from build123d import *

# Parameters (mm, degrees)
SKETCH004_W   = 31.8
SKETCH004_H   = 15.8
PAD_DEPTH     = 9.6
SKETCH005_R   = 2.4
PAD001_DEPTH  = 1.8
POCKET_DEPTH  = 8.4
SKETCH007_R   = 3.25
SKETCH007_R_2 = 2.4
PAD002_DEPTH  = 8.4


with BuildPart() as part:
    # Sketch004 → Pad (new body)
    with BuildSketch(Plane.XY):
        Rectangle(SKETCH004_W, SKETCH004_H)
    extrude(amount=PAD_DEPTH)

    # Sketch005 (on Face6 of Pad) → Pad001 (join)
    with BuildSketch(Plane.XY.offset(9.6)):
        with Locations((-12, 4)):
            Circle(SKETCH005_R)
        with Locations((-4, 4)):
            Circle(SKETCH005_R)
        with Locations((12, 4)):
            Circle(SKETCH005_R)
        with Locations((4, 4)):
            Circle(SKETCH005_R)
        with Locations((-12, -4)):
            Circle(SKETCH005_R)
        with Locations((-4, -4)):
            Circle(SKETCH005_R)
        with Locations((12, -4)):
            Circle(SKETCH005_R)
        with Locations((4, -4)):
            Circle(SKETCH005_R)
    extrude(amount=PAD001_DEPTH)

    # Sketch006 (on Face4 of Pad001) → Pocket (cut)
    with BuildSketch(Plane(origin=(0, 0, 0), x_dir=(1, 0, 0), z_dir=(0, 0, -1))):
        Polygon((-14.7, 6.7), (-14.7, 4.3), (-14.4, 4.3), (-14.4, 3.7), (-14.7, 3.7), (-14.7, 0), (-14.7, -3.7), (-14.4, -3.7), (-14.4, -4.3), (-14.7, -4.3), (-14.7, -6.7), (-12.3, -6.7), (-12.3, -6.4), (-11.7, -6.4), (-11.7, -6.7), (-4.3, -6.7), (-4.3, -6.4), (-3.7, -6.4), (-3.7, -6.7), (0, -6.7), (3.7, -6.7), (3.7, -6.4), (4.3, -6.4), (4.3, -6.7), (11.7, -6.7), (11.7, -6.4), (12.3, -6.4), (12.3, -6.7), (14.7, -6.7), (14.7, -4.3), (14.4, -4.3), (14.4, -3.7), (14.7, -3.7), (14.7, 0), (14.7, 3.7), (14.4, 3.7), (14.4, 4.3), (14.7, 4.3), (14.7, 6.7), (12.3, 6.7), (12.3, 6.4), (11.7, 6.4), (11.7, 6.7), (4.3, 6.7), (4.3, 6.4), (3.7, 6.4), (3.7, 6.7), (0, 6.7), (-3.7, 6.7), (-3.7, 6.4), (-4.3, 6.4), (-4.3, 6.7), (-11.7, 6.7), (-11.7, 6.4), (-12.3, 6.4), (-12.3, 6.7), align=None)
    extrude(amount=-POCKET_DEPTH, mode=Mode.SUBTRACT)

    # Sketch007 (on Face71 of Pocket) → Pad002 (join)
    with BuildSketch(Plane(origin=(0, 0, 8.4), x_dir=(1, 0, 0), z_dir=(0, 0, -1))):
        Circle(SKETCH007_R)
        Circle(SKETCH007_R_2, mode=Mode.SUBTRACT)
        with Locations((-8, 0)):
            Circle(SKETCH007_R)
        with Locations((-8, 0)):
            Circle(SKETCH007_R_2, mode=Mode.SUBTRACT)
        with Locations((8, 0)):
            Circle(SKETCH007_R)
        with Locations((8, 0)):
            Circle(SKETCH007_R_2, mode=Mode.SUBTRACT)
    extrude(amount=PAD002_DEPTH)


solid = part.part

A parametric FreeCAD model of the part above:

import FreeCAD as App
import Part
import Sketcher

V = App.Vector


def add_polygon(sketch, points):
    """Adds a closed chain of lines whose ends are joined by coincident constraints."""
    first, n = sketch.GeometryCount, len(points)
    for a, b in zip(points, points[1:] + points[:1]):
        sketch.addGeometry(Part.LineSegment(App.Vector(*a, 0), App.Vector(*b, 0)), False)
    for i in range(n):
        sketch.addConstraint(Sketcher.Constraint("Coincident", first + i, 2, first + (i + 1) % n, 1))

doc = App.newDocument("Part")
body = doc.addObject("PartDesign::Body", "Body")

sketch1 = body.newObject("Sketcher::SketchObject", "Sketch")
sketch1.AttachmentSupport = (doc.getObject("XY_Plane"), [""])
sketch1.MapMode = "FlatFace"
add_polygon(sketch1, [(-15.9, 7.9), (-15.9, -7.9), (15.9, -7.9), (15.9, 7.9)])
sketch1.addConstraint(Sketcher.Constraint("Vertical", 0))
sketch1.addConstraint(Sketcher.Constraint("Horizontal", 1))
sketch1.addConstraint(Sketcher.Constraint("Vertical", 2))
sketch1.addConstraint(Sketcher.Constraint("Horizontal", 3))
sketch1.addConstraint(Sketcher.Constraint("Symmetric", 0, 2, 2, 2, -1, 1))
sketch1.addConstraint(Sketcher.Constraint("DistanceX", 1, 1, 1, 2, 31.8))
sketch1.addConstraint(Sketcher.Constraint("DistanceY", 0, 2, 0, 1, 15.8))
pad1 = body.newObject("PartDesign::Pad", "Pad")
pad1.Profile = sketch1
pad1.Length = 9.6

sketch2 = body.newObject("Sketcher::SketchObject", "Sketch001")
sketch2.AttachmentSupport = (doc.getObject("XY_Plane"), [""])
sketch2.MapMode = "FlatFace"
sketch2.AttachmentOffset = App.Placement(V(0, 0, 9.6), App.Rotation())
sketch2.addGeometry(Part.Circle(V(-12, 4, 0), V(0, 0, 1), 2.4), False)
sketch2.addGeometry(Part.Circle(V(-4, 4, 0), V(0, 0, 1), 2.4), False)
sketch2.addGeometry(Part.Circle(V(12, 4, 0), V(0, 0, 1), 2.4), False)
sketch2.addGeometry(Part.Circle(V(4, 4, 0), V(0, 0, 1), 2.4), False)
sketch2.addGeometry(Part.Circle(V(-12, -4, 0), V(0, 0, 1), 2.4), False)
sketch2.addGeometry(Part.Circle(V(-4, -4, 0), V(0, 0, 1), 2.4), False)
sketch2.addGeometry(Part.Circle(V(12, -4, 0), V(0, 0, 1), 2.4), False)
sketch2.addGeometry(Part.Circle(V(4, -4, 0), V(0, 0, 1), 2.4), False)
sketch2.addConstraint(Sketcher.Constraint("Equal", 0, 1))
sketch2.addConstraint(Sketcher.Constraint("Equal", 1, 2))
sketch2.addConstraint(Sketcher.Constraint("Equal", 2, 3))
sketch2.addConstraint(Sketcher.Constraint("Equal", 3, 4))
sketch2.addConstraint(Sketcher.Constraint("Equal", 4, 5))
sketch2.addConstraint(Sketcher.Constraint("Equal", 5, 6))
sketch2.addConstraint(Sketcher.Constraint("Equal", 6, 7))
sketch2.addConstraint(Sketcher.Constraint("Symmetric", 2, 3, 4, 3, -1, 1))
sketch2.addConstraint(Sketcher.Constraint("Symmetric", 3, 3, 5, 3, -1, 1))
sketch2.addConstraint(Sketcher.Constraint("Symmetric", 0, 3, 6, 3, -1, 1))
sketch2.addConstraint(Sketcher.Constraint("Symmetric", 1, 3, 7, 3, -1, 1))
sketch2.addConstraint(Sketcher.Constraint("Symmetric", 0, 3, 2, 3, -2))
sketch2.addConstraint(Sketcher.Constraint("Symmetric", 1, 3, 3, 3, -2))
sketch2.addConstraint(Sketcher.Constraint("Horizontal", 0, 3, 1, 3))
sketch2.addConstraint(Sketcher.Constraint("Diameter", 0, 4.8))
sketch2.addConstraint(Sketcher.Constraint("DistanceX", 0, 3, -1, 1, 12.0))
sketch2.addConstraint(Sketcher.Constraint("DistanceY", -1, 1, 0, 3, 4.0))
sketch2.addConstraint(Sketcher.Constraint("DistanceX", 1, 3, -1, 1, 4.0))
pad2 = body.newObject("PartDesign::Pad", "Pad001")
pad2.Profile = sketch2
pad2.Length = 1.8

sketch3 = body.newObject("Sketcher::SketchObject", "Sketch002")
sketch3.AttachmentSupport = (doc.getObject("XY_Plane"), [""])
sketch3.MapMode = "FlatFace"
add_polygon(sketch3, [(-14.7, -6.7), (-14.7, -4.3), (-14.4, -4.3), (-14.4, -3.7), (-14.7, -3.7), (-14.7, 3.7), (-14.4, 3.7), (-14.4, 4.3), (-14.7, 4.3), (-14.7, 6.7), (-12.3, 6.7), (-12.3, 6.4), (-11.7, 6.4), (-11.7, 6.7), (-4.3, 6.7), (-4.3, 6.4), (-3.7, 6.4), (-3.7, 6.7), (3.7, 6.7), (3.7, 6.4), (4.3, 6.4), (4.3, 6.7), (11.7, 6.7), (11.7, 6.4), (12.3, 6.4), (12.3, 6.7), (14.7, 6.7), (14.7, 4.3), (14.4, 4.3), (14.4, 3.7), (14.7, 3.7), (14.7, -3.7), (14.4, -3.7), (14.4, -4.3), (14.7, -4.3), (14.7, -6.7), (12.3, -6.7), (12.3, -6.4), (11.7, -6.4), (11.7, -6.7), (4.3, -6.7), (4.3, -6.4), (3.7, -6.4), (3.7, -6.7), (-3.7, -6.7), (-3.7, -6.4), (-4.3, -6.4), (-4.3, -6.7), (-11.7, -6.7), (-11.7, -6.4), (-12.3, -6.4), (-12.3, -6.7)])
sketch3.addConstraint(Sketcher.Constraint("Vertical", 0))
sketch3.addConstraint(Sketcher.Constraint("Horizontal", 1))
sketch3.addConstraint(Sketcher.Constraint("Vertical", 2))
sketch3.addConstraint(Sketcher.Constraint("Horizontal", 3))
sketch3.addConstraint(Sketcher.Constraint("Vertical", 4))
sketch3.addConstraint(Sketcher.Constraint("Horizontal", 5))
sketch3.addConstraint(Sketcher.Constraint("Vertical", 6))
sketch3.addConstraint(Sketcher.Constraint("Horizontal", 7))
sketch3.addConstraint(Sketcher.Constraint("Vertical", 8))
sketch3.addConstraint(Sketcher.Constraint("Horizontal", 9))
sketch3.addConstraint(Sketcher.Constraint("Vertical", 10))
sketch3.addConstraint(Sketcher.Constraint("Horizontal", 11))
sketch3.addConstraint(Sketcher.Constraint("Vertical", 12))
sketch3.addConstraint(Sketcher.Constraint("Horizontal", 13))
sketch3.addConstraint(Sketcher.Constraint("Vertical", 14))
sketch3.addConstraint(Sketcher.Constraint("Horizontal", 15))
sketch3.addConstraint(Sketcher.Constraint("Vertical", 16))
sketch3.addConstraint(Sketcher.Constraint("Horizontal", 17))
sketch3.addConstraint(Sketcher.Constraint("Vertical", 18))
sketch3.addConstraint(Sketcher.Constraint("Horizontal", 19))
sketch3.addConstraint(Sketcher.Constraint("Vertical", 20))
sketch3.addConstraint(Sketcher.Constraint("Horizontal", 21))
sketch3.addConstraint(Sketcher.Constraint("Vertical", 22))
sketch3.addConstraint(Sketcher.Constraint("Horizontal", 23))
sketch3.addConstraint(Sketcher.Constraint("Vertical", 24))
sketch3.addConstraint(Sketcher.Constraint("Horizontal", 25))
sketch3.addConstraint(Sketcher.Constraint("Vertical", 26))
sketch3.addConstraint(Sketcher.Constraint("Horizontal", 27))
sketch3.addConstraint(Sketcher.Constraint("Vertical", 28))
sketch3.addConstraint(Sketcher.Constraint("Horizontal", 29))
sketch3.addConstraint(Sketcher.Constraint("Vertical", 30))
sketch3.addConstraint(Sketcher.Constraint("Horizontal", 31))
sketch3.addConstraint(Sketcher.Constraint("Vertical", 32))
sketch3.addConstraint(Sketcher.Constraint("Horizontal", 33))
sketch3.addConstraint(Sketcher.Constraint("Vertical", 34))
sketch3.addConstraint(Sketcher.Constraint("Horizontal", 35))
sketch3.addConstraint(Sketcher.Constraint("Vertical", 36))
sketch3.addConstraint(Sketcher.Constraint("Horizontal", 37))
sketch3.addConstraint(Sketcher.Constraint("Vertical", 38))
sketch3.addConstraint(Sketcher.Constraint("Horizontal", 39))
sketch3.addConstraint(Sketcher.Constraint("Vertical", 40))
sketch3.addConstraint(Sketcher.Constraint("Horizontal", 41))
sketch3.addConstraint(Sketcher.Constraint("Vertical", 42))
sketch3.addConstraint(Sketcher.Constraint("Horizontal", 43))
sketch3.addConstraint(Sketcher.Constraint("Vertical", 44))
sketch3.addConstraint(Sketcher.Constraint("Horizontal", 45))
sketch3.addConstraint(Sketcher.Constraint("Vertical", 46))
sketch3.addConstraint(Sketcher.Constraint("Horizontal", 47))
sketch3.addConstraint(Sketcher.Constraint("Vertical", 48))
sketch3.addConstraint(Sketcher.Constraint("Horizontal", 49))
sketch3.addConstraint(Sketcher.Constraint("Vertical", 50))
sketch3.addConstraint(Sketcher.Constraint("Horizontal", 51))
sketch3.addConstraint(Sketcher.Constraint("Symmetric", 0, 2, 26, 2, -1, 1))
sketch3.addConstraint(Sketcher.Constraint("Symmetric", 2, 2, 28, 2, -1, 1))
sketch3.addConstraint(Sketcher.Constraint("Symmetric", 4, 2, 30, 2, -1, 1))
sketch3.addConstraint(Sketcher.Constraint("Symmetric", 6, 2, 32, 2, -1, 1))
sketch3.addConstraint(Sketcher.Constraint("Symmetric", 8, 2, 34, 2, -1, 1))
sketch3.addConstraint(Sketcher.Constraint("Symmetric", 10, 2, 36, 2, -1, 1))
sketch3.addConstraint(Sketcher.Constraint("Symmetric", 12, 2, 38, 2, -1, 1))
sketch3.addConstraint(Sketcher.Constraint("Symmetric", 14, 2, 40, 2, -1, 1))
sketch3.addConstraint(Sketcher.Constraint("Symmetric", 16, 2, 42, 2, -1, 1))
sketch3.addConstraint(Sketcher.Constraint("Symmetric", 18, 2, 44, 2, -1, 1))
sketch3.addConstraint(Sketcher.Constraint("Symmetric", 20, 2, 46, 2, -1, 1))
sketch3.addConstraint(Sketcher.Constraint("Symmetric", 22, 2, 48, 2, -1, 1))
sketch3.addConstraint(Sketcher.Constraint("Symmetric", 24, 2, 50, 2, -1, 1))
sketch3.addConstraint(Sketcher.Constraint("Symmetric", 15, 2, 18, 2, -2))
sketch3.addConstraint(Sketcher.Constraint("Symmetric", 13, 2, 20, 2, -2))
sketch3.addConstraint(Sketcher.Constraint("Symmetric", 11, 2, 22, 2, -2))
sketch3.addConstraint(Sketcher.Constraint("Symmetric", 9, 2, 24, 2, -2))
sketch3.addConstraint(Sketcher.Constraint("Symmetric", 7, 2, 26, 2, -2))
sketch3.addConstraint(Sketcher.Constraint("Symmetric", 5, 2, 28, 2, -2))
sketch3.addConstraint(Sketcher.Constraint("Horizontal", 9, 2, 12, 2))
sketch3.addConstraint(Sketcher.Constraint("Horizontal", 11, 2, 14, 2))
sketch3.addConstraint(Sketcher.Constraint("Horizontal", 13, 2, 16, 2))
sketch3.addConstraint(Sketcher.Constraint("Vertical", 0, 2, 3, 2))
sketch3.addConstraint(Sketcher.Constraint("Equal", 11, 15))
sketch3.addConstraint(Sketcher.Constraint("Equal", 13, 17))
sketch3.addConstraint(Sketcher.Constraint("Equal", 51, 0))
sketch3.addConstraint(Sketcher.Constraint("Equal", 49, 2))
sketch3.addConstraint(Sketcher.Constraint("Equal", 47, 4))
sketch3.addConstraint(Sketcher.Constraint("Equal", 33, 10))
sketch3.addConstraint(Sketcher.Constraint("DistanceX", 1, 1, 1, 2, 0.3))
sketch3.addConstraint(Sketcher.Constraint("DistanceX", 9, 1, 9, 2, 2.4))
sketch3.addConstraint(Sketcher.Constraint("DistanceX", 11, 1, 11, 2, 0.6))
sketch3.addConstraint(Sketcher.Constraint("DistanceX", 13, 1, 13, 2, 7.4))
pocket1 = body.newObject("PartDesign::Pocket", "Pocket")
pocket1.Profile = sketch3
pocket1.Length = 8.4
pocket1.Reversed = True

sketch4 = body.newObject("Sketcher::SketchObject", "Sketch003")
sketch4.AttachmentSupport = (doc.getObject("XY_Plane"), [""])
sketch4.MapMode = "FlatFace"
sketch4.AttachmentOffset = App.Placement(V(0, 0, 8.4), App.Rotation())
sketch4.addGeometry(Part.Circle(V(0, 0, 0), V(0, 0, 1), 3.25), False)
sketch4.addGeometry(Part.Circle(V(0, 0, 0), V(0, 0, 1), 2.4), False)
sketch4.addGeometry(Part.Circle(V(-8, 0, 0), V(0, 0, 1), 3.25), False)
sketch4.addGeometry(Part.Circle(V(-8, 0, 0), V(0, 0, 1), 2.4), False)
sketch4.addGeometry(Part.Circle(V(8, 0, 0), V(0, 0, 1), 3.25), False)
sketch4.addGeometry(Part.Circle(V(8, 0, 0), V(0, 0, 1), 2.4), False)
sketch4.addConstraint(Sketcher.Constraint("Coincident", 0, 3, -1, 1))
sketch4.addConstraint(Sketcher.Constraint("Coincident", 1, 3, -1, 1))
sketch4.addConstraint(Sketcher.Constraint("Coincident", 3, 3, 2, 3))
sketch4.addConstraint(Sketcher.Constraint("Coincident", 5, 3, 4, 3))
sketch4.addConstraint(Sketcher.Constraint("Equal", 0, 2))
sketch4.addConstraint(Sketcher.Constraint("Equal", 1, 3))
sketch4.addConstraint(Sketcher.Constraint("Equal", 2, 4))
sketch4.addConstraint(Sketcher.Constraint("Equal", 3, 5))
sketch4.addConstraint(Sketcher.Constraint("Symmetric", 2, 3, 4, 3, -1, 1))
sketch4.addConstraint(Sketcher.Constraint("PointOnObject", 2, 3, -1))
sketch4.addConstraint(Sketcher.Constraint("Diameter", 0, 6.5))
sketch4.addConstraint(Sketcher.Constraint("Diameter", 1, 4.8))
sketch4.addConstraint(Sketcher.Constraint("DistanceX", 2, 3, -1, 1, 8.0))
pad3 = body.newObject("PartDesign::Pad", "Pad002")
pad3.Profile = sketch4
pad3.Length = 8.4
pad3.Reversed = True

doc.recompute()
